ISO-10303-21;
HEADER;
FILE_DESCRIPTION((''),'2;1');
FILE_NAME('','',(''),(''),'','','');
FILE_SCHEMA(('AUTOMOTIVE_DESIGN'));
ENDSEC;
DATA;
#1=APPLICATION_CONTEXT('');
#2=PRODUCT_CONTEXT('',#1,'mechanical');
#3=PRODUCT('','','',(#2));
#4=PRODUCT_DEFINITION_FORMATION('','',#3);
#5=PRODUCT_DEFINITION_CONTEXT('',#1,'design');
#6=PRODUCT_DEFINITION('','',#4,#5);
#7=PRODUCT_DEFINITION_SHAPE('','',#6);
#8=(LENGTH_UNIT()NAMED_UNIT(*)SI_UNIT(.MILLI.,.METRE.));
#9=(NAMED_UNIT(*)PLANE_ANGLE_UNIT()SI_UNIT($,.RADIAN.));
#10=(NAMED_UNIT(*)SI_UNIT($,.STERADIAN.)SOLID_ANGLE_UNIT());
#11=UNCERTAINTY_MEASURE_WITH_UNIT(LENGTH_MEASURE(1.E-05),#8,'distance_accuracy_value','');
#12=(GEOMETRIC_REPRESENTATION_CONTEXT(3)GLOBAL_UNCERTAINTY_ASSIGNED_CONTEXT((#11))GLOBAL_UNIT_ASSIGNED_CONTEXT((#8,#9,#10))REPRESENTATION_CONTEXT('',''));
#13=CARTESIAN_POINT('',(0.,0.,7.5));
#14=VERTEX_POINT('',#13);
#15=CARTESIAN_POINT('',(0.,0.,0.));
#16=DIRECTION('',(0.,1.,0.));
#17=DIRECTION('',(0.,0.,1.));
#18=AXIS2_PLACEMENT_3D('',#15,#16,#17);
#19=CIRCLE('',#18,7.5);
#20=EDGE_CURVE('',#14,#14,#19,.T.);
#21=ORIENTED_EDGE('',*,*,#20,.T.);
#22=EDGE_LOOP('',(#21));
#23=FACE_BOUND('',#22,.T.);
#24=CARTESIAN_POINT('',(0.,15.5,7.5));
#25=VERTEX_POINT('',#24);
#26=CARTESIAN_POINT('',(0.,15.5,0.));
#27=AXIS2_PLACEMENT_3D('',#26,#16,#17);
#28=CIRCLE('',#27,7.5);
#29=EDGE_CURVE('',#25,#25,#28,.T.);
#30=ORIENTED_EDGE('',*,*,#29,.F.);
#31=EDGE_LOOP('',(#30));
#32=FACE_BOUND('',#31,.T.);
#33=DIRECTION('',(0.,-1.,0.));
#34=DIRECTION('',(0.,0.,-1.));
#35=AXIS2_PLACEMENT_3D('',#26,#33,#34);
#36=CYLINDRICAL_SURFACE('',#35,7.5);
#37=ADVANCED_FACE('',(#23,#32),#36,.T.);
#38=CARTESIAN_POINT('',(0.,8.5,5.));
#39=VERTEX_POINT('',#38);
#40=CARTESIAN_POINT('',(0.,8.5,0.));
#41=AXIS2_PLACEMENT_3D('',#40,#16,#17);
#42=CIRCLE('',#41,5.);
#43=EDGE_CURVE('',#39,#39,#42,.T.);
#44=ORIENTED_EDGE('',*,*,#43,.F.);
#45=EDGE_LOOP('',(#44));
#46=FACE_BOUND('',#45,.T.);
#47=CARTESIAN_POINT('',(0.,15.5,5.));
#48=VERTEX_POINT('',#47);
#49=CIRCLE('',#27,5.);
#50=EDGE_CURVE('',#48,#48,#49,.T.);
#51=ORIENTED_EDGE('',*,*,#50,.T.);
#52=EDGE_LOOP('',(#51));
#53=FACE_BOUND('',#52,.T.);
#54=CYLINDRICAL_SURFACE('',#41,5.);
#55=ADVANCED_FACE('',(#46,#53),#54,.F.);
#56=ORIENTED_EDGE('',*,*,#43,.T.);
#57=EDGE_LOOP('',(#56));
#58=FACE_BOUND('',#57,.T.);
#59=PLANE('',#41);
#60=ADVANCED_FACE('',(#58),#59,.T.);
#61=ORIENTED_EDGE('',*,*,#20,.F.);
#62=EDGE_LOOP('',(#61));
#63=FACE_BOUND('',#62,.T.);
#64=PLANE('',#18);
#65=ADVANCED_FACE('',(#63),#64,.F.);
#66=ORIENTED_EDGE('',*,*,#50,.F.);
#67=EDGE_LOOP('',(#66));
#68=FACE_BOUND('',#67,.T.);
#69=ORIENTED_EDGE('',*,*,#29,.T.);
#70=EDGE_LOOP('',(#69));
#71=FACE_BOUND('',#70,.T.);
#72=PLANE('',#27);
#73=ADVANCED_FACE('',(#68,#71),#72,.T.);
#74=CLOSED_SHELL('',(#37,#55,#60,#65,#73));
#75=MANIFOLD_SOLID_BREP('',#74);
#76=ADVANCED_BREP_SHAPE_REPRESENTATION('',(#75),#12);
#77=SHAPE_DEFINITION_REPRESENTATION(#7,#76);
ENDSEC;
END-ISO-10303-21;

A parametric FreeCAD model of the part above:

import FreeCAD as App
import Part
import Sketcher
Q = App.Units.Quantity

doc = App.newDocument("Part")
params = doc.addObject("Spreadsheet::Sheet", "Params")
for row, (alias, value) in enumerate([
    ("sketch1_diameter", "15 mm"),
    ("pad1_length", "15.5 mm"),
    ("sketch2_diameter", "10 mm"),
    ("pocket1_length", "7 mm"),
], start=1):
    params.set(f"A{row}", alias)
    params.set(f"B{row}", "=" + value)
    params.setAlias(f"B{row}", alias)

body = doc.addObject("PartDesign::Body", "Body")

sketch1 = doc.addObject("Sketcher::SketchObject", "Sketch")
body.addObject(sketch1)
sketch1.AttachmentSupport = (doc.XZ_Plane, [""])
sketch1.MapMode = "FlatFace"
sketch1.addGeometry(Part.Circle(App.Vector(0, 0, 0), App.Vector(0, 0, 1), 8), False)
sketch1.addConstraint([
    Sketcher.Constraint("Coincident", 0, 3, -1, 1),
    Sketcher.Constraint("Diameter", 0, Q("15 mm")),
])
sketch1.setExpression("Constraints[1]", "Params.sketch1_diameter")
pad1 = doc.addObject("PartDesign::Pad", "Pad")
body.addObject(pad1)
pad1.Profile = sketch1
pad1.setExpression("Length", "Params.pad1_length")
pad1.Reversed = True

sketch2 = doc.addObject("Sketcher::SketchObject", "Sketch001")
body.addObject(sketch2)
sketch2.AttachmentSupport = (doc.XZ_Plane, [""])
sketch2.MapMode = "FlatFace"
sketch2.AttachmentOffset = App.Placement(App.Vector(0, 0, -15.5), App.Rotation())
sketch2.addGeometry(Part.Circle(App.Vector(0, 0, 0), App.Vector(0, 0, 1), 5), False)
sketch2.addConstraint([
    Sketcher.Constraint("Coincident", 0, 3, -1, 1),
    Sketcher.Constraint("Diameter", 0, Q("10 mm")),
])
sketch2.setExpression("Constraints[1]", "Params.sketch2_diameter")
pocket1 = doc.addObject("PartDesign::Pocket", "Pocket")
body.addObject(pocket1)
pocket1.Profile = sketch2
pocket1.setExpression("Length", "Params.pocket1_length")
pocket1.Reversed = True

doc.recompute()
